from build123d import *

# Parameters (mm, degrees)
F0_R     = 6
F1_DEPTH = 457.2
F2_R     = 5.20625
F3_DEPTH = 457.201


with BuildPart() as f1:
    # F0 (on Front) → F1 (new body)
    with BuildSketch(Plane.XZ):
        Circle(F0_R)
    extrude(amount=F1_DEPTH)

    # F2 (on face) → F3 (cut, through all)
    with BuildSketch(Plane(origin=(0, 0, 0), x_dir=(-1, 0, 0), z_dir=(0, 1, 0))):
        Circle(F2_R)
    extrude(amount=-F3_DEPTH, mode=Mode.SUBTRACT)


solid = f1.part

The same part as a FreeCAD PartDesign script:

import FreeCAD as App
import Part
import Sketcher

doc = App.newDocument("Part")
body = doc.addObject("PartDesign::Body", "Body")

sketch1 = body.newObject("Sketcher::SketchObject", "Sketch")
sketch1.AttachmentSupport = (doc.getObject("XZ_Plane"), [""])
sketch1.MapMode = "FlatFace"
sketch1.addGeometry(Part.Circle(App.Vector(0, 0, 0), App.Vector(0, 0, 1), 6), False)
sketch1.addConstraint(Sketcher.Constraint("Coincident", 0, 3, -1, 1))
sketch1.addConstraint(Sketcher.Constraint("Diameter", 0, 12.0))
pad1 = body.newObject("PartDesign::Pad", "Pad")
pad1.Profile = sketch1
pad1.Length = 457.2

sketch2 = body.newObject("Sketcher::SketchObject", "Sketch001")
sketch2.AttachmentSupport = (doc.getObject("XZ_Plane"), [""])
sketch2.MapMode = "FlatFace"
sketch2.addGeometry(Part.Circle(App.Vector(0, 0, 0), App.Vector(0, 0, 1), 5), False)
sketch2.addConstraint(Sketcher.Constraint("Coincident", 0, 3, -1, 1))
sketch2.addConstraint(Sketcher.Constraint("Diameter", 0, 10.4125))
pocket1 = body.newObject("PartDesign::Pocket", "Pocket")
pocket1.Profile = sketch2
pocket1.Type = "ThroughAll"
pocket1.Reversed = True

doc.recompute()
